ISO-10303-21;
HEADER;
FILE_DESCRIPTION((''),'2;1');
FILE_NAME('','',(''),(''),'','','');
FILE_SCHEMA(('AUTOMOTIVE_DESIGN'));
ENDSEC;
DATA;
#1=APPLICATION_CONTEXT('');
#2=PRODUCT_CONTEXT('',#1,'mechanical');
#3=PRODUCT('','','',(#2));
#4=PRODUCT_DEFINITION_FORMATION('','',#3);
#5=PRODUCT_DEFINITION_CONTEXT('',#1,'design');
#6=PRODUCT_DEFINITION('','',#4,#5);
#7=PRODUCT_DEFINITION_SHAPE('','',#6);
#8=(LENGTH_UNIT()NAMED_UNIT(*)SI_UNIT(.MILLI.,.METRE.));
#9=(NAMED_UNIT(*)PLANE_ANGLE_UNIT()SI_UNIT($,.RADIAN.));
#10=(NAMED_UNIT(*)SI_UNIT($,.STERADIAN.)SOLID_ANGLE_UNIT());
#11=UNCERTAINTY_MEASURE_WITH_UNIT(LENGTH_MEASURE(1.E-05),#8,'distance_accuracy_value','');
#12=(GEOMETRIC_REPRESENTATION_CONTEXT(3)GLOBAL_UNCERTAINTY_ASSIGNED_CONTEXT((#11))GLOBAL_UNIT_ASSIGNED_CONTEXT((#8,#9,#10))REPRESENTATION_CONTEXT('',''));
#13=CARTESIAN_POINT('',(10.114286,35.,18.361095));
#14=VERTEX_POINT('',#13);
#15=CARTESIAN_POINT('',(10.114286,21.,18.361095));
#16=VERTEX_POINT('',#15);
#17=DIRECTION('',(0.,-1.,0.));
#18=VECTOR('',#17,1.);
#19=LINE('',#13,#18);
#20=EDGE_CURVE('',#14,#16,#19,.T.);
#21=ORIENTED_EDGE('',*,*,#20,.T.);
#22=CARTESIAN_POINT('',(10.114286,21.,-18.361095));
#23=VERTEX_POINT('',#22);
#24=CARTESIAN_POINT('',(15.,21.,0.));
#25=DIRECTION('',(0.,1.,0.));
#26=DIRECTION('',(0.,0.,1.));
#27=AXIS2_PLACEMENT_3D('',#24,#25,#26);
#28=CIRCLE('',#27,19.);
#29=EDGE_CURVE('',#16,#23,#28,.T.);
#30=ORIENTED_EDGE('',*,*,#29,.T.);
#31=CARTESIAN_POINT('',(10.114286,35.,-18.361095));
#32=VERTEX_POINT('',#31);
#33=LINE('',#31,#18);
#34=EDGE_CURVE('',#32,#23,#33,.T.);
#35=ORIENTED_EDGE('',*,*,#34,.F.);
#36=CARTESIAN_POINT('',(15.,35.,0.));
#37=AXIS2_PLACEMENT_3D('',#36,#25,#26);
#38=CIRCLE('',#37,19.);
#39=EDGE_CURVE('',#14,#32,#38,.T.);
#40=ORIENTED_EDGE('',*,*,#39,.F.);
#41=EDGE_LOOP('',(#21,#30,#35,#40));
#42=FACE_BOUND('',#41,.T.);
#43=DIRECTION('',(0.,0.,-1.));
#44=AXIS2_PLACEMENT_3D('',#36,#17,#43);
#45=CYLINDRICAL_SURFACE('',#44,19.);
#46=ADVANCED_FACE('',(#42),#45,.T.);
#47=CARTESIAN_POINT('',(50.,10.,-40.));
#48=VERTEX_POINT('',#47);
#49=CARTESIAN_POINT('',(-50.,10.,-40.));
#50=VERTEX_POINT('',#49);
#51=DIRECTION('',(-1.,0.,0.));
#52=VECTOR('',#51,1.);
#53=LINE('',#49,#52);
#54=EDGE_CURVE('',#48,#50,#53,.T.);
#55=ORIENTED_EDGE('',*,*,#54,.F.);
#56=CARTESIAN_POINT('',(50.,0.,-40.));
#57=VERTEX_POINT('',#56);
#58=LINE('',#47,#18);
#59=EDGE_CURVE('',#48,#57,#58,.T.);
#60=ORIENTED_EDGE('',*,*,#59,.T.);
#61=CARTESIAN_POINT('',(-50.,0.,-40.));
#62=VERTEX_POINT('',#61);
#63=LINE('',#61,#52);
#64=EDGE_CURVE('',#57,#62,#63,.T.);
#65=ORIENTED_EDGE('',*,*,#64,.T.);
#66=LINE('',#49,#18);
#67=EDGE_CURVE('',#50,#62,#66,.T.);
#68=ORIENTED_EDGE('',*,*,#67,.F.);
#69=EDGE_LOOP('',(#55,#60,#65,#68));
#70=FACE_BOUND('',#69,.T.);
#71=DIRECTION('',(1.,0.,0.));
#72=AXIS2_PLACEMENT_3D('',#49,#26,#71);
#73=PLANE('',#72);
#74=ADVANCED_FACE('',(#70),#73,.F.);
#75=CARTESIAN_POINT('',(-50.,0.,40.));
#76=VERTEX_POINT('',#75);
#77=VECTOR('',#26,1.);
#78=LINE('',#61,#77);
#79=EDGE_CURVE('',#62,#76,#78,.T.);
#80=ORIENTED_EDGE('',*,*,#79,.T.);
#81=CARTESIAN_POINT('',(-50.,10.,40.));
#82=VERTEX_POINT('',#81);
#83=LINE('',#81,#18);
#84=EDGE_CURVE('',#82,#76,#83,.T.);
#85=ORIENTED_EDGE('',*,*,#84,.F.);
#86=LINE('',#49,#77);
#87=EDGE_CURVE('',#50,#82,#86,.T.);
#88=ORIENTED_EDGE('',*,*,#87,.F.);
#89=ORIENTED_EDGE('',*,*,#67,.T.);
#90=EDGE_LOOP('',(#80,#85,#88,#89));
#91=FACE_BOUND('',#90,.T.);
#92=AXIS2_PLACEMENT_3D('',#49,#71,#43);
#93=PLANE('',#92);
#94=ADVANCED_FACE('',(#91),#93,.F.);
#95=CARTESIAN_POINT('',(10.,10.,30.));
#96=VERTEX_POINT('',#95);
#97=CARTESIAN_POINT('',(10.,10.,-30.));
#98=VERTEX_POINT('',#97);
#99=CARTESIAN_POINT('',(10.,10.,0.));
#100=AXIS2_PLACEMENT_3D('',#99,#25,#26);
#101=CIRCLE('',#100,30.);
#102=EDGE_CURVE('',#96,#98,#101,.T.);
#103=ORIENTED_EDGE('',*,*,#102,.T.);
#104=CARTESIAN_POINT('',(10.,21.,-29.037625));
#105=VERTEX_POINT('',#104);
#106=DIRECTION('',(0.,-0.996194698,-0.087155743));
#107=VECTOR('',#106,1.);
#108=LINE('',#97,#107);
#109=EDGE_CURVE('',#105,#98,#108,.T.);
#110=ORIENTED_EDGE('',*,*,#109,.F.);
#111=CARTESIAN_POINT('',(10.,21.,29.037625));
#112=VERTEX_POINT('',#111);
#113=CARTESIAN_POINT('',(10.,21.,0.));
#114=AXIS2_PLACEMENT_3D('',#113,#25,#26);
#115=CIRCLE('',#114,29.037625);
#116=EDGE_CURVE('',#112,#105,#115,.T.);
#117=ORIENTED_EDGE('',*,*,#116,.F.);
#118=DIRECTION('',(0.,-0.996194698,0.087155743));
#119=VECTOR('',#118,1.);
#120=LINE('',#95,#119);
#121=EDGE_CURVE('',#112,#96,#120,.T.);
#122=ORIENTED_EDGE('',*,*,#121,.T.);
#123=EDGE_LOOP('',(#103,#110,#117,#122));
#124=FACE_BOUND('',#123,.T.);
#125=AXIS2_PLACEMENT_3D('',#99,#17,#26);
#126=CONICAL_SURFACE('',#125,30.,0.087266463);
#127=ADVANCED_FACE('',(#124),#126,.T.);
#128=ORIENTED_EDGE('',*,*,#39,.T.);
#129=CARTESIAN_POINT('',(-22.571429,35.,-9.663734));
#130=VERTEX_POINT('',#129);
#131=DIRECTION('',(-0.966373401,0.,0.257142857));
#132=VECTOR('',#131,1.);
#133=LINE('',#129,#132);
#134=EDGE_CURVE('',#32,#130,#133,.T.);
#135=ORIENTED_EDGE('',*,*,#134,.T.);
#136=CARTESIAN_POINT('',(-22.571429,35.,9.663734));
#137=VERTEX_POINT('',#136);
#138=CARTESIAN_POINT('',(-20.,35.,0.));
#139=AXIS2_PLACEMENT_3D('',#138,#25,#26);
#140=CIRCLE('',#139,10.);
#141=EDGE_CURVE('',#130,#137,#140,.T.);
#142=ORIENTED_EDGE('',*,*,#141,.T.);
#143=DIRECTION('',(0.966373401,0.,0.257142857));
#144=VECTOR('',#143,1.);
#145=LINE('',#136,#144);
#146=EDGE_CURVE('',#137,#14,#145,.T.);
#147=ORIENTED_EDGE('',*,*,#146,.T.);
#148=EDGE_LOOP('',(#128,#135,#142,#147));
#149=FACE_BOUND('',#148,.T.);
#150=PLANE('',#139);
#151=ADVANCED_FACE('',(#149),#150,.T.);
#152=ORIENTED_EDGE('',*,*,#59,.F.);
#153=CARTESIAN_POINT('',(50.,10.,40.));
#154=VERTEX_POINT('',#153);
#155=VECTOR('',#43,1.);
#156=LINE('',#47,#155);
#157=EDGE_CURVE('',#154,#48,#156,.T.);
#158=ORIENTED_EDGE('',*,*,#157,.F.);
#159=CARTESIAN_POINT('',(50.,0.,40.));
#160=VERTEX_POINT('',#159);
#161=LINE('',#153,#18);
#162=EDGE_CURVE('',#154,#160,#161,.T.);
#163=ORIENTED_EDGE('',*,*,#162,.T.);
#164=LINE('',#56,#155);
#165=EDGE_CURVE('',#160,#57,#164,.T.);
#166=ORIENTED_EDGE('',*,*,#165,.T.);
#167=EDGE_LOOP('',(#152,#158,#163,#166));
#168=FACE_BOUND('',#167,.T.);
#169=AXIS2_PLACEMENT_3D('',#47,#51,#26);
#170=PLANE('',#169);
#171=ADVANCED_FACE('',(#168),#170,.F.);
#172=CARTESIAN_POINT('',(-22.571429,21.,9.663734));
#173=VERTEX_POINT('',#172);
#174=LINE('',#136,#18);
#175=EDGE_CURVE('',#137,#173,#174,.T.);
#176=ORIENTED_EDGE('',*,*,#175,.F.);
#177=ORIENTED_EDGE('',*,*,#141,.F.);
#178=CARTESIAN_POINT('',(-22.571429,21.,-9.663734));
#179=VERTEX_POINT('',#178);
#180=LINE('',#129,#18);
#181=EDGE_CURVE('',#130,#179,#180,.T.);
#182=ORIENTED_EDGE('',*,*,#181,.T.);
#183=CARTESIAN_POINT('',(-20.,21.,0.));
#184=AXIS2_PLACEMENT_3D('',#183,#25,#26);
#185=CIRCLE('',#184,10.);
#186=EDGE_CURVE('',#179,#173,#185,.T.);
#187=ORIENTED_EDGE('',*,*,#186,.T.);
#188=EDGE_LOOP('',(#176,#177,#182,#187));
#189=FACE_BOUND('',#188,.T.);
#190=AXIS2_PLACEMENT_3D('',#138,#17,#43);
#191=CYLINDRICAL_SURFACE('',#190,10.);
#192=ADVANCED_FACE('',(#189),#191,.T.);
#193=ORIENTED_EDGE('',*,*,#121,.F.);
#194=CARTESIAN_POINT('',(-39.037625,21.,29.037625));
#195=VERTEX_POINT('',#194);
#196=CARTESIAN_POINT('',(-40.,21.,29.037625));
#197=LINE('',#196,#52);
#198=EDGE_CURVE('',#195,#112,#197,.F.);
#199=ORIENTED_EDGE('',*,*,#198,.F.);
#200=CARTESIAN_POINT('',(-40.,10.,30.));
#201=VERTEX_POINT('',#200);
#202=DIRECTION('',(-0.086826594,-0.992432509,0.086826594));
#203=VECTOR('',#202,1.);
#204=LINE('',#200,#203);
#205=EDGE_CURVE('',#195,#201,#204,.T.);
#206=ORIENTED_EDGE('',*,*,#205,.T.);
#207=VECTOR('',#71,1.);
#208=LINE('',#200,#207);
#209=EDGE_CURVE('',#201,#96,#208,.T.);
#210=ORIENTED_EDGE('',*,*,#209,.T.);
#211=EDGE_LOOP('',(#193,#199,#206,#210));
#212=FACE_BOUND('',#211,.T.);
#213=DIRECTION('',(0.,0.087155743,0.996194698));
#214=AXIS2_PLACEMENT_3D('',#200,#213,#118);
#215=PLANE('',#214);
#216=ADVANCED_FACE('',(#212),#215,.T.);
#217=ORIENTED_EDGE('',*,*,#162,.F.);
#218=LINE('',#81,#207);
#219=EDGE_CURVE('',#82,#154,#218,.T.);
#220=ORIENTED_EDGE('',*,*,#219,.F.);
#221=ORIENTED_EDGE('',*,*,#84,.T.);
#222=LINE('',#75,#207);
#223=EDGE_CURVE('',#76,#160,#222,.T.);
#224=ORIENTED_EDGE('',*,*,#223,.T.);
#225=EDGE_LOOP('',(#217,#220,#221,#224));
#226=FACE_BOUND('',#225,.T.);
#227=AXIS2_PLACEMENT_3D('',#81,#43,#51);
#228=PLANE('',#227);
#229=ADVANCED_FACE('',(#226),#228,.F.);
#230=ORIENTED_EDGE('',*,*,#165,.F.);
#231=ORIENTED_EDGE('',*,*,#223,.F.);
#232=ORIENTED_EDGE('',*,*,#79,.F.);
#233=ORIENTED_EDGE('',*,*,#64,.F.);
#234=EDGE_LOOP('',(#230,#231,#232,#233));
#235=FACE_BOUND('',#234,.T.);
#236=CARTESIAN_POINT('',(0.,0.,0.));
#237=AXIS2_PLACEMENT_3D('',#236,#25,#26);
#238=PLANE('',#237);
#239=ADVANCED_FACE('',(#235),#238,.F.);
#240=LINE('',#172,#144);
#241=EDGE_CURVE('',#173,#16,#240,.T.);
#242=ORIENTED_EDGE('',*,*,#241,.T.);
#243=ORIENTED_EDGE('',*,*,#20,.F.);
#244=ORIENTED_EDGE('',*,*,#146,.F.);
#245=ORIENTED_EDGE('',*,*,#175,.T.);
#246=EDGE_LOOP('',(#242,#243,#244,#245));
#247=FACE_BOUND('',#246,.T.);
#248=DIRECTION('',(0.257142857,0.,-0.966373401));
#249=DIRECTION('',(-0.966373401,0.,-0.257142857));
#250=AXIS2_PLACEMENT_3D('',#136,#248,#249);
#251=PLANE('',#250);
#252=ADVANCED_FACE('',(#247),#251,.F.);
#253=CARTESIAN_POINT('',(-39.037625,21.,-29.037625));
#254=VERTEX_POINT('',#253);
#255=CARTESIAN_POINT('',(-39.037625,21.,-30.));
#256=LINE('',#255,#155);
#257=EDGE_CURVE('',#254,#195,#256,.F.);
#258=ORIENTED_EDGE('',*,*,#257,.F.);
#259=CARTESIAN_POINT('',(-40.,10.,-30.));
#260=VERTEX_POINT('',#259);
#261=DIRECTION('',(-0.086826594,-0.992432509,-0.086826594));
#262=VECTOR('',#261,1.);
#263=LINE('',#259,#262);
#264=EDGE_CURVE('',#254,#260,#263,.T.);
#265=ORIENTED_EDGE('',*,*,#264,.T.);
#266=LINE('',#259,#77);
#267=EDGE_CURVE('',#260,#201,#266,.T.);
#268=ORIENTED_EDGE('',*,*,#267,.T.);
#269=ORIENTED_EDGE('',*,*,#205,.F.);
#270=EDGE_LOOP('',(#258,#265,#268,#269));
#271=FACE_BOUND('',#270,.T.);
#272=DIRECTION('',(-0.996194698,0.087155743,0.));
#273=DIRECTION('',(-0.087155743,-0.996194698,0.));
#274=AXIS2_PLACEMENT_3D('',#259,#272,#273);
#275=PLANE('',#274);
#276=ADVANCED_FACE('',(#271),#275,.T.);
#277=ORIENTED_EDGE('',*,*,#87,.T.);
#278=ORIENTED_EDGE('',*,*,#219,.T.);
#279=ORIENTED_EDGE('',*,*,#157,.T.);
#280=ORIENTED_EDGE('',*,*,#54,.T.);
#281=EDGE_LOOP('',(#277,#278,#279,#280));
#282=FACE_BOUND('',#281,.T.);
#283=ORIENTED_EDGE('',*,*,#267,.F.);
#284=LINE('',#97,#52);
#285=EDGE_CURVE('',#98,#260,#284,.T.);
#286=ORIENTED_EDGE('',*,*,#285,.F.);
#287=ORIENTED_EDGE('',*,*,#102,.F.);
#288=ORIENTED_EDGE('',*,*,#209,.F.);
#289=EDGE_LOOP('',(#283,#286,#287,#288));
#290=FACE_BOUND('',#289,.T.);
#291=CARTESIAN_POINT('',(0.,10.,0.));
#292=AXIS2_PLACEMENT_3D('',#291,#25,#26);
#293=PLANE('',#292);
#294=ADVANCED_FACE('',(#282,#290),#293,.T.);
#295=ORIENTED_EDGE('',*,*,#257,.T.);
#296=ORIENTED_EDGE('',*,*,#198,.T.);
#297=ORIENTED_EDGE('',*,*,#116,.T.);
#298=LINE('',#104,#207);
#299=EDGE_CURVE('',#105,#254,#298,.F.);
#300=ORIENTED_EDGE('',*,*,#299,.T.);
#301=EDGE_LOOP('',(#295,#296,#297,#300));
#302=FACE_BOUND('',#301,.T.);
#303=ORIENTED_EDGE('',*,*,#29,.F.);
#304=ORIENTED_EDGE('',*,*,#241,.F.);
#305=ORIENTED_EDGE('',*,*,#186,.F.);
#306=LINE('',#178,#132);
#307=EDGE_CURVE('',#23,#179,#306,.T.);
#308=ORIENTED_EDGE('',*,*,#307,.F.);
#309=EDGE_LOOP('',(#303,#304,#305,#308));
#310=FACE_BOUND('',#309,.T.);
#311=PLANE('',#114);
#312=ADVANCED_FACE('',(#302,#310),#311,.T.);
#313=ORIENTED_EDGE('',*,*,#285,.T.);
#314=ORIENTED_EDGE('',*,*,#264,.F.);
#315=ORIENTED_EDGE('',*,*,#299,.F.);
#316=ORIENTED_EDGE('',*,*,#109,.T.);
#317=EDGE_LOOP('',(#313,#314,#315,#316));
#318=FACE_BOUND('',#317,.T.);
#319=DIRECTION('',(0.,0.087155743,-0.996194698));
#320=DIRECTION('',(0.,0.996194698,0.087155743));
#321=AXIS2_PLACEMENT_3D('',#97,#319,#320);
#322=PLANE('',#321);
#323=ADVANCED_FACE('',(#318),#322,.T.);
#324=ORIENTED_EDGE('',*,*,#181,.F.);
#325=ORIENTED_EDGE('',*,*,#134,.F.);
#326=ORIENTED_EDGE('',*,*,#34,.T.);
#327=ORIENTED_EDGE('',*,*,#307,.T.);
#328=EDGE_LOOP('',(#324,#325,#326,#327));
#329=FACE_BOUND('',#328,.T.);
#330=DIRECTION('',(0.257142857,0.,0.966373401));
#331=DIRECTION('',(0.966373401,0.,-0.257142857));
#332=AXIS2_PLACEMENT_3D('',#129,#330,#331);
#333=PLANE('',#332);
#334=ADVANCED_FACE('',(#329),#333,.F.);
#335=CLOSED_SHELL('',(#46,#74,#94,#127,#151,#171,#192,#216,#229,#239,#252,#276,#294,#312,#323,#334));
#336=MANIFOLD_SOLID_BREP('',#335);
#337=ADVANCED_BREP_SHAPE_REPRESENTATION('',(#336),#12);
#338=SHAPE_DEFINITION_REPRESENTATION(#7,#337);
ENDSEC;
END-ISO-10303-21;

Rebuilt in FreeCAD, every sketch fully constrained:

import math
import FreeCAD as App
import Part
import Sketcher
Q = App.Units.Quantity


def add_polygon(sketch, points):
    """Adds a closed chain of lines whose ends are joined by coincident constraints."""
    first, n = sketch.GeometryCount, len(points)
    for a, b in zip(points, points[1:] + points[:1]):
        sketch.addGeometry(Part.LineSegment(App.Vector(*a, 0), App.Vector(*b, 0)), False)
    for i in range(n):
        sketch.addConstraint(Sketcher.Constraint("Coincident", first + i, 2, first + (i + 1) % n, 1))

doc = App.newDocument("Part")
body = doc.addObject("PartDesign::Body", "Body")

sketch1 = body.newObject("Sketcher::SketchObject", "Sketch")
sketch1.AttachmentSupport = (doc.getObject("XZ_Plane"), [""])
sketch1.MapMode = "FlatFace"
add_polygon(sketch1, [(-50, -40), (-50, 40), (50, 40), (50, -40)])
sketch1.addConstraint(Sketcher.Constraint("Vertical", 0))
sketch1.addConstraint(Sketcher.Constraint("Horizontal", 1))
sketch1.addConstraint(Sketcher.Constraint("Vertical", 2))
sketch1.addConstraint(Sketcher.Constraint("Horizontal", 3))
sketch1.addConstraint(Sketcher.Constraint("Symmetric", 0, 2, 2, 2, -1, 1))
sketch1.addConstraint(Sketcher.Constraint("DistanceX", 1, 1, 1, 2, Q("100 mm")))
sketch1.addConstraint(Sketcher.Constraint("DistanceY", 0, 1, 0, 2, Q("80 mm")))
pad1 = body.newObject("PartDesign::Pad", "Pad")
pad1.Profile = sketch1
pad1.Length = 10
pad1.Reversed = True

sketch2 = body.newObject("Sketcher::SketchObject", "Sketch001")
sketch2.AttachmentSupport = (doc.getObject("XZ_Plane"), [""])
sketch2.MapMode = "FlatFace"
sketch2.AttachmentOffset = App.Placement(App.Vector(0, 0, -10), App.Rotation())
sketch2.addGeometry(Part.LineSegment(App.Vector(10, -30, 0), App.Vector(-40, -30, 0)), False)
sketch2.addGeometry(Part.LineSegment(App.Vector(-40, -30, 0), App.Vector(-40, 30, 0)), False)
sketch2.addGeometry(Part.LineSegment(App.Vector(-40, 30, 0), App.Vector(10, 30, 0)), False)
sketch2.addGeometry(Part.ArcOfCircle(Part.Circle(App.Vector(10, 0, 0), App.Vector(0, 0, 1), 30), math.radians(-90), math.radians(90)), False)
sketch2.addConstraint(Sketcher.Constraint("Coincident", 0, 2, 1, 1))
sketch2.addConstraint(Sketcher.Constraint("Coincident", 1, 2, 2, 1))
sketch2.addConstraint(Sketcher.Constraint("Tangent", 2, 2, 3, 2))
sketch2.addConstraint(Sketcher.Constraint("Tangent", 3, 1, 0, 1))
sketch2.addConstraint(Sketcher.Constraint("Horizontal", 0))
sketch2.addConstraint(Sketcher.Constraint("Vertical", 1))
sketch2.addConstraint(Sketcher.Constraint("Horizontal", 2))
sketch2.addConstraint(Sketcher.Constraint("PointOnObject", 3, 3, -1))
sketch2.addConstraint(Sketcher.Constraint("Radius", 3, Q("30 mm")))
sketch2.addConstraint(Sketcher.Constraint("DistanceX", 0, 2, 0, 1, Q("50 mm")))
sketch2.addConstraint(Sketcher.Constraint("DistanceX", -1, 1, 3, 3, Q("10 mm")))
pad2 = body.newObject("PartDesign::Pad", "Pad001")
pad2.Profile = sketch2
pad2.Length = 11
pad2.Reversed = True
pad2.TaperAngle = -5

sketch3 = body.newObject("Sketcher::SketchObject", "Sketch002")
sketch3.AttachmentSupport = (doc.getObject("XZ_Plane"), [""])
sketch3.MapMode = "FlatFace"
sketch3.AttachmentOffset = App.Placement(App.Vector(0, 0, -21), App.Rotation())
sketch3.addGeometry(Part.LineSegment(App.Vector(10.114286, -18.361095, 0), App.Vector(-22.571429, -9.663734, 0)), False)
sketch3.addGeometry(Part.ArcOfCircle(Part.Circle(App.Vector(-20, 0, 0), App.Vector(0, 0, 1), 10), math.radians(104.900597), math.radians(255.099403)), False)
sketch3.addGeometry(Part.LineSegment(App.Vector(-22.571429, 9.663734, 0), App.Vector(10.114286, 18.361095, 0)), False)
sketch3.addGeometry(Part.ArcOfCircle(Part.Circle(App.Vector(15, 0, 0), App.Vector(0, 0, 1), 19), math.radians(-104.900597), math.radians(104.900597)), False)
sketch3.addConstraint(Sketcher.Constraint("Tangent", 0, 2, 1, 2))
sketch3.addConstraint(Sketcher.Constraint("Tangent", 1, 1, 2, 1))
sketch3.addConstraint(Sketcher.Constraint("Tangent", 2, 2, 3, 2))
sketch3.addConstraint(Sketcher.Constraint("Tangent", 3, 1, 0, 1))
sketch3.addConstraint(Sketcher.Constraint("Symmetric", 0, 2, 1, 1, -1))
sketch3.addConstraint(Sketcher.Constraint("Radius", 1, Q("10 mm")))
sketch3.addConstraint(Sketcher.Constraint("Radius", 3, Q("19 mm")))
sketch3.addConstraint(Sketcher.Constraint("DistanceX", 1, 3, -1, 1, Q("20 mm")))
sketch3.addConstraint(Sketcher.Constraint("DistanceX", -1, 1, 3, 3, Q("15 mm")))
pad3 = body.newObject("PartDesign::Pad", "Pad002")
pad3.Profile = sketch3
pad3.Length = 14
pad3.Reversed = True

doc.recompute()
